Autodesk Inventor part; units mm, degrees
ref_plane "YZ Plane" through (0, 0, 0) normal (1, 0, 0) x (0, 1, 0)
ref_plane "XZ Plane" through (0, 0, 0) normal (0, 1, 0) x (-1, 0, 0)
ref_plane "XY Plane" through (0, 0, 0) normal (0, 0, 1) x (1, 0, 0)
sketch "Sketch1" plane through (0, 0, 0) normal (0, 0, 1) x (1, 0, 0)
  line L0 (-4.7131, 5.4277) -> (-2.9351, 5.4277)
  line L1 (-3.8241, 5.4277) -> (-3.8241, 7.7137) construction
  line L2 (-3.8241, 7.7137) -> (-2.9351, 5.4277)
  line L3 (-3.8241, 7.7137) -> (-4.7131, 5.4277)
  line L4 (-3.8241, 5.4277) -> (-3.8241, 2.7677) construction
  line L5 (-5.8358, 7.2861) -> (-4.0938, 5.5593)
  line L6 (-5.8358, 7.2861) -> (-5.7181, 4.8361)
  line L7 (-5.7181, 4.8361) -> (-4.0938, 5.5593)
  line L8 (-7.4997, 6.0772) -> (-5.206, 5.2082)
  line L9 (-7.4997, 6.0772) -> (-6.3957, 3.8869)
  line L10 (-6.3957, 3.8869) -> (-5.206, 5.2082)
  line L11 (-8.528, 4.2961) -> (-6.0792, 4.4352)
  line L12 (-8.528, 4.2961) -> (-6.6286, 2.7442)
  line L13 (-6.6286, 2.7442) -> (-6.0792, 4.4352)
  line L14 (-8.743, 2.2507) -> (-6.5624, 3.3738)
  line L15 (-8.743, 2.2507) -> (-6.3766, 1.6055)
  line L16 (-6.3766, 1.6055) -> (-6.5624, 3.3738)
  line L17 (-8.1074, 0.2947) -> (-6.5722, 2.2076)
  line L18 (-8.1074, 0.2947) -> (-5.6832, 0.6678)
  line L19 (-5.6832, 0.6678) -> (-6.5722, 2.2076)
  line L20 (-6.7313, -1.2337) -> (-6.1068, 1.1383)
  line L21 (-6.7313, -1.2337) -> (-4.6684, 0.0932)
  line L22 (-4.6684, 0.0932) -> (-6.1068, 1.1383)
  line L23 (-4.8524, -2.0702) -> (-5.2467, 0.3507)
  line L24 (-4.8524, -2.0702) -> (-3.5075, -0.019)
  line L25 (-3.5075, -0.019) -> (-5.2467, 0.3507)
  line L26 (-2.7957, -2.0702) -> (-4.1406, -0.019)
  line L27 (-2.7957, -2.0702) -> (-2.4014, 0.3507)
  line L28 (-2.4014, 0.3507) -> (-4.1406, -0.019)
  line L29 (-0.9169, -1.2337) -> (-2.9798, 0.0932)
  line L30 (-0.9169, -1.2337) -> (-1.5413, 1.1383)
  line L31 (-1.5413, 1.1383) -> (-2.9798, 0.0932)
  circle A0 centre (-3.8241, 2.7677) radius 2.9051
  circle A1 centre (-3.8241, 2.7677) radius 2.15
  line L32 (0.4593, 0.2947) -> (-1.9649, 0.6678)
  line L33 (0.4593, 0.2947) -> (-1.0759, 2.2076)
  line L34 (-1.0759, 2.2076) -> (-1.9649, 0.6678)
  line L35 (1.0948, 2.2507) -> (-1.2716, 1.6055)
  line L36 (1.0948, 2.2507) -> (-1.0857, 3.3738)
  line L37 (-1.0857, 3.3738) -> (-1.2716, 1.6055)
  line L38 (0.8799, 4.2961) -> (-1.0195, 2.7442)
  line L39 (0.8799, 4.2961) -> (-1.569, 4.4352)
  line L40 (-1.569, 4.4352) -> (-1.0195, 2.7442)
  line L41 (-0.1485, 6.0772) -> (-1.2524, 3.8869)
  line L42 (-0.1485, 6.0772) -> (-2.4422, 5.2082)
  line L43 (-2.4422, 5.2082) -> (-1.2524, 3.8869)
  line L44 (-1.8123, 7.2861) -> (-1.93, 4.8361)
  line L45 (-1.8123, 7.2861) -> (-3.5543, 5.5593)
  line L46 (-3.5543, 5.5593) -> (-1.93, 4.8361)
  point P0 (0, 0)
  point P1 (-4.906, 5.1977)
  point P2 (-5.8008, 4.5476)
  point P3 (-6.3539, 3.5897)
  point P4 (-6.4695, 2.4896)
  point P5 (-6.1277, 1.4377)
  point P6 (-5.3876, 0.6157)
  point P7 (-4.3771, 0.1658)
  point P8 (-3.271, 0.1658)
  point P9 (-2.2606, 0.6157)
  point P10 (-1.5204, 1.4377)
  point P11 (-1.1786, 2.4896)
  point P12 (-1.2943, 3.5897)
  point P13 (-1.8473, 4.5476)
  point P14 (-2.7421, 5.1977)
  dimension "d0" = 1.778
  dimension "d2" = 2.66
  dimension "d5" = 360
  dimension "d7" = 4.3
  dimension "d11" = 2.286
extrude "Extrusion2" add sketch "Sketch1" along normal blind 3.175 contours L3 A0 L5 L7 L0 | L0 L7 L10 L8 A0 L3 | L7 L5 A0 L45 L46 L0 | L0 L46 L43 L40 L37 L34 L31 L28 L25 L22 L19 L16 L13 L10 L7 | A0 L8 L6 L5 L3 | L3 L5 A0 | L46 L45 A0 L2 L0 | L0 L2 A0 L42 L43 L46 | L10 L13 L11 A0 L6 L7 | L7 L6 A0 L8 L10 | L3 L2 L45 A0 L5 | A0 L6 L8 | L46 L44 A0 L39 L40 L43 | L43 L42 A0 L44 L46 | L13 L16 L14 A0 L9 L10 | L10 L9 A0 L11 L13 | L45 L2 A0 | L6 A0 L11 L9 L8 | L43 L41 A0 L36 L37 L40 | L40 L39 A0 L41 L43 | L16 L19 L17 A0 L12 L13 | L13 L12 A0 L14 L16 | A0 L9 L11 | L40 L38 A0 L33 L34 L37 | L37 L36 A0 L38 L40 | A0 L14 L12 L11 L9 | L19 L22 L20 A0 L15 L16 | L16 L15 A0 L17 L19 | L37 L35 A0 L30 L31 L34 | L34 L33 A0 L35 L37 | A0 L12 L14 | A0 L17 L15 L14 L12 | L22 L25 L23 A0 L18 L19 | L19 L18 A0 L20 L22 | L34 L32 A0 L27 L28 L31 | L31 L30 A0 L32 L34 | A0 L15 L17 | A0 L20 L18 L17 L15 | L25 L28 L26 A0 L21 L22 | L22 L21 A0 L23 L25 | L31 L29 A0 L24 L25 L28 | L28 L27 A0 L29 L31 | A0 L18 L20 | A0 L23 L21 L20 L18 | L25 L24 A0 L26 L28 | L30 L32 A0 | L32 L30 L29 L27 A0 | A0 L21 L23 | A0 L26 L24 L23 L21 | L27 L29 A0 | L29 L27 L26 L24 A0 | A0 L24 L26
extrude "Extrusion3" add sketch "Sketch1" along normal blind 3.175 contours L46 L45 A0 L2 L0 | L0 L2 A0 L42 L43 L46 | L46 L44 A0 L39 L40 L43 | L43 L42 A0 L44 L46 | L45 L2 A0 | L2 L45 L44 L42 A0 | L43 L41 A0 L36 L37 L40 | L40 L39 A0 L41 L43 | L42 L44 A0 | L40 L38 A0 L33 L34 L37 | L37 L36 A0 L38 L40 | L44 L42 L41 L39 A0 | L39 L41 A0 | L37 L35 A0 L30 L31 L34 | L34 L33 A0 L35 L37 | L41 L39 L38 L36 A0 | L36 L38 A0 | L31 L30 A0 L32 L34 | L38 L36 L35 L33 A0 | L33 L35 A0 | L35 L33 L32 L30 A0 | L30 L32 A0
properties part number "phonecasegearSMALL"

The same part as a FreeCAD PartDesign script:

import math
import FreeCAD as App
import Part
import Sketcher
from FreeCAD import Vector
Q = App.Units.Quantity


def add_polygon(sketch, points):
    """Adds a closed chain of lines whose ends are joined by coincident constraints."""
    first, n = sketch.GeometryCount, len(points)
    for a, b in zip(points, points[1:] + points[:1]):
        sketch.addGeometry(Part.LineSegment(App.Vector(*a, 0), App.Vector(*b, 0)), False)
    for i in range(n):
        sketch.addConstraint(Sketcher.Constraint("Coincident", first + i, 2, first + (i + 1) % n, 1))

doc = App.newDocument("Part")
body = doc.addObject("PartDesign::Body", "Body")

sketch1 = body.newObject("Sketcher::SketchObject", "Sketch")
sketch1.AttachmentSupport = (doc.getObject("XY_Plane"), [""])
sketch1.MapMode = "FlatFace"
sketch1.addGeometry(Part.LineSegment(Vector(-4.5, 6, 0), Vector(-5.8, 7.3, 0)), False)
sketch1.addGeometry(Part.LineSegment(Vector(-5.8, 7.3, 0), Vector(-5.7, 5.4, 0)), False)
sketch1.addGeometry(Part.LineSegment(Vector(-5.7, 5.4, 0), Vector(-7.5, 6.1, 0)), False)
sketch1.addGeometry(Part.LineSegment(Vector(-7.5, 6.1, 0), Vector(-6.7, 4.4, 0)), False)
sketch1.addGeometry(Part.LineSegment(Vector(-6.7, 4.4, 0), Vector(-8.5, 4.3, 0)), False)
sketch1.addGeometry(Part.LineSegment(Vector(-8.5, 4.3, 0), Vector(-7.1, 3.1, 0)), False)
sketch1.addGeometry(Part.LineSegment(Vector(-7.1, 3.1, 0), Vector(-8.7, 2.3, 0)), False)
sketch1.addGeometry(Part.LineSegment(Vector(-8.7, 2.3, 0), Vector(-6.9, 1.8, 0)), False)
sketch1.addGeometry(Part.LineSegment(Vector(-6.9, 1.8, 0), Vector(-8.1, 0.3, 0)), False)
sketch1.addGeometry(Part.LineSegment(Vector(-8.1, 0.3, 0), Vector(-6.3, 0.6, 0)), False)
sketch1.addGeometry(Part.LineSegment(Vector(-6.3, 0.6, 0), Vector(-6.7, -1.2, 0)), False)
sketch1.addGeometry(Part.LineSegment(Vector(-6.7, -1.2, 0), Vector(-5.2, -0.2, 0)), False)
sketch1.addGeometry(Part.LineSegment(Vector(-5.2, -0.2, 0), Vector(-4.9, -2.1, 0)), False)
sketch1.addGeometry(Part.LineSegment(Vector(-4.9, -2.1, 0), Vector(-3.8, -0.5, 0)), False)
sketch1.addGeometry(Part.LineSegment(Vector(-3.8, -0.5, 0), Vector(-2.8, -2.1, 0)), False)
sketch1.addGeometry(Part.LineSegment(Vector(-2.8, -2.1, 0), Vector(-2.5, -0.2, 0)), False)
sketch1.addGeometry(Part.LineSegment(Vector(-2.5, -0.2, 0), Vector(-0.9, -1.2, 0)), False)
sketch1.addGeometry(Part.LineSegment(Vector(-0.9, -1.2, 0), Vector(-1.5, 1, 0)), False)
sketch1.addGeometry(Part.ArcOfCircle(Part.Circle(Vector(-3.8, 2.8, 0), Vector(0, 0, 1), 2.9), math.radians(-37), math.radians(73)), False)
sketch1.addGeometry(Part.LineSegment(Vector(-3, 5.5, 0), Vector(-3.8, 7.7, 0)), False)
sketch1.addGeometry(Part.LineSegment(Vector(-3.8, 7.7, 0), Vector(-4.5, 6, 0)), False)
sketch1.addGeometry(Part.Circle(Vector(-3.8, 2.8, 0), Vector(0, 0, 1), 2.1), False)
sketch1.addConstraint(Sketcher.Constraint("Coincident", 0, 2, 1, 1))
sketch1.addConstraint(Sketcher.Constraint("Coincident", 1, 2, 2, 1))
sketch1.addConstraint(Sketcher.Constraint("Coincident", 2, 2, 3, 1))
sketch1.addConstraint(Sketcher.Constraint("Coincident", 3, 2, 4, 1))
sketch1.addConstraint(Sketcher.Constraint("Coincident", 4, 2, 5, 1))
sketch1.addConstraint(Sketcher.Constraint("Coincident", 5, 2, 6, 1))
sketch1.addConstraint(Sketcher.Constraint("Coincident", 6, 2, 7, 1))
sketch1.addConstraint(Sketcher.Constraint("Coincident", 7, 2, 8, 1))
sketch1.addConstraint(Sketcher.Constraint("Coincident", 8, 2, 9, 1))
sketch1.addConstraint(Sketcher.Constraint("Coincident", 9, 2, 10, 1))
sketch1.addConstraint(Sketcher.Constraint("Coincident", 10, 2, 11, 1))
sketch1.addConstraint(Sketcher.Constraint("Coincident", 11, 2, 12, 1))
sketch1.addConstraint(Sketcher.Constraint("Coincident", 12, 2, 13, 1))
sketch1.addConstraint(Sketcher.Constraint("Coincident", 13, 2, 14, 1))
sketch1.addConstraint(Sketcher.Constraint("Coincident", 14, 2, 15, 1))
sketch1.addConstraint(Sketcher.Constraint("Coincident", 15, 2, 16, 1))
sketch1.addConstraint(Sketcher.Constraint("Coincident", 16, 2, 17, 1))
sketch1.addConstraint(Sketcher.Constraint("Coincident", 17, 2, 18, 1))
sketch1.addConstraint(Sketcher.Constraint("Coincident", 18, 2, 19, 1))
sketch1.addConstraint(Sketcher.Constraint("Coincident", 19, 2, 20, 1))
sketch1.addConstraint(Sketcher.Constraint("Coincident", 20, 2, 0, 1))
sketch1.addConstraint(Sketcher.Constraint("Coincident", 21, 3, 18, 3))
sketch1.addConstraint(Sketcher.Constraint("Horizontal", 12, 2, 14, 2))
sketch1.addConstraint(Sketcher.Constraint("Horizontal", 11, 2, 15, 2))
sketch1.addConstraint(Sketcher.Constraint("Horizontal", 10, 2, 16, 2))
sketch1.addConstraint(Sketcher.Constraint("Vertical", 21, 3, 13, 2))
sketch1.addConstraint(Sketcher.Constraint("Vertical", 13, 2, 19, 2))
sketch1.addConstraint(Sketcher.Constraint("Equal", 0, 1))
sketch1.addConstraint(Sketcher.Constraint("Equal", 1, 2))
sketch1.addConstraint(Sketcher.Constraint("Equal", 2, 3))
sketch1.addConstraint(Sketcher.Constraint("Equal", 3, 4))
sketch1.addConstraint(Sketcher.Constraint("Equal", 4, 5))
sketch1.addConstraint(Sketcher.Constraint("Equal", 5, 6))
sketch1.addConstraint(Sketcher.Constraint("Equal", 6, 7))
sketch1.addConstraint(Sketcher.Constraint("Equal", 7, 8))
sketch1.addConstraint(Sketcher.Constraint("Equal", 8, 9))
sketch1.addConstraint(Sketcher.Constraint("Equal", 9, 10))
sketch1.addConstraint(Sketcher.Constraint("Equal", 10, 11))
sketch1.addConstraint(Sketcher.Constraint("Equal", 11, 12))
sketch1.addConstraint(Sketcher.Constraint("Equal", 12, 13))
sketch1.addConstraint(Sketcher.Constraint("Equal", 13, 14))
sketch1.addConstraint(Sketcher.Constraint("Equal", 14, 15))
sketch1.addConstraint(Sketcher.Constraint("Equal", 15, 16))
sketch1.addConstraint(Sketcher.Constraint("Equal", 17, 19))
sketch1.addConstraint(Sketcher.Constraint("Equal", 16, 20))
sketch1.addConstraint(Sketcher.Constraint("Diameter", 21, Q("0.1693 in")))
sketch1.addConstraint(Sketcher.Constraint("Angle", 0, Q("135.251 deg")))
sketch1.addConstraint(Sketcher.Constraint("Angle", 1, Q("-87.2496 deg")))
sketch1.addConstraint(Sketcher.Constraint("Angle", 2, Q("159.25 deg")))
sketch1.addConstraint(Sketcher.Constraint("Angle", 3, Q("-63.25 deg")))
sketch1.addConstraint(Sketcher.Constraint("Angle", 4, Q("-176.749 deg")))
sketch1.addConstraint(Sketcher.Constraint("Angle", 5, Q("-39.2505 deg")))
sketch1.addConstraint(Sketcher.Constraint("Angle", 6, Q("-152.7496 deg")))
sketch1.addConstraint(Sketcher.Constraint("Angle", 7, Q("-15.251 deg")))
sketch1.addConstraint(Sketcher.Constraint("Angle", 8, Q("-128.7488 deg")))
sketch1.addConstraint(Sketcher.Constraint("Angle", 9, Q("8.7495 deg")))
sketch1.addConstraint(Sketcher.Constraint("Angle", 10, Q("-104.75 deg")))
sketch1.addConstraint(Sketcher.Constraint("Angle", 11, Q("32.75 deg")))
sketch1.addConstraint(Sketcher.Constraint("Angle", 12, Q("-80.7493 deg")))
sketch1.addConstraint(Sketcher.Constraint("Angle", 19, Q("111.2505 deg")))
sketch1.addConstraint(Sketcher.Constraint("Angle", 20, Q("-111.2505 deg")))
sketch1.addConstraint(Sketcher.Constraint("Radius", 18, Q("2.905 mm")))
sketch1.addConstraint(Sketcher.Constraint("DistanceX", 11, 2, 15, 2, Q("2.6597 mm")))
sketch1.addConstraint(Sketcher.Constraint("DistanceX", 10, 2, -1, 1, Q("0.265 in")))
sketch1.addConstraint(Sketcher.Constraint("DistanceY", -1, 1, 1, 2, Q("0.2131 in")))
sketch1.addConstraint(Sketcher.Constraint("DistanceY", -1, 1, 17, 2, Q("0.0399 in")))
pad1 = body.newObject("PartDesign::Pad", "Pad")
pad1.Profile = sketch1
pad1.Length = Q("0.125 in")

sketch2 = body.newObject("Sketcher::SketchObject", "Sketch001")
sketch2.AttachmentSupport = (doc.getObject("XY_Plane"), [""])
sketch2.MapMode = "FlatFace"
add_polygon(sketch2, [(-3.5543, 5.5593), (-2.225678, 4.967747), (-1.468987, 4.127424), (-1.119528, 3.052021), (-1.237778, 1.927218), (-1.9649, 0.6678), (0.4593, 0.2947), (-0.714571, 1.757374), (1.0948, 2.2507), (-0.572464, 3.10945), (0.8799, 4.2961), (-0.992562, 4.402458), (-0.1485, 6.0772), (-1.902297, 5.41275), (-1.8123, 7.2861)])
sketch2.addConstraint(Sketcher.Constraint("DistanceY", 4, 2, 0, 2, Q("0.1693 in")))
sketch2.addConstraint(Sketcher.Constraint("DistanceY", 5, 2, 7, 2, Q("0.077 in")))
sketch2.addConstraint(Sketcher.Constraint("DistanceX", 2, 2, 10, 2, Q("0.005 in")))
sketch2.addConstraint(Sketcher.Constraint("DistanceY", -1, 1, 1, 2, Q("0.1625 in")))
sketch2.addConstraint(Sketcher.Constraint("DistanceY", -1, 1, 4, 2, Q("0.0263 in")))
sketch2.addConstraint(Sketcher.Constraint("DistanceY", -1, 1, 5, 2, Q("0.0116 in")))
sketch2.addConstraint(Sketcher.Constraint("DistanceX", -1, 1, 7, 2, Q("0.0431 in")))
sketch2.addConstraint(Sketcher.Constraint("DistanceX", 12, 2, -1, 1, Q("0.0749 in")))
sketch2.addConstraint(Sketcher.Constraint("DistanceY", -1, 1, 12, 2, Q("0.2131 in")))
sketch2.addConstraint(Sketcher.Constraint("DistanceX", 0, 2, 1, 2, Q("0.0298 in")))
sketch2.addConstraint(Sketcher.Constraint("DistanceX", 1, 2, 3, 2, Q("0.0091 in")))
sketch2.addConstraint(Sketcher.Constraint("DistanceY", 3, 2, 0, 2, Q("0.1197 in")))
sketch2.addConstraint(Sketcher.Constraint("DistanceX", 0, 2, 5, 2, Q("0.1057 in")))
sketch2.addConstraint(Sketcher.Constraint("DistanceX", 3, 2, 6, 2, Q("0.0206 in")))
sketch2.addConstraint(Sketcher.Constraint("DistanceY", 4, 2, 6, 2, Q("0.0429 in")))
sketch2.addConstraint(Sketcher.Constraint("DistanceX", 1, 2, 8, 2, Q("0.0353 in")))
sketch2.addConstraint(Sketcher.Constraint("DistanceY", 7, 2, 8, 2, Q("0.0338 in")))
sketch2.addConstraint(Sketcher.Constraint("DistanceY", 8, 2, 10, 2, Q("0.0509 in")))
sketch2.addConstraint(Sketcher.Constraint("DistanceX", 11, 2, 9, 2, Q("0.0405 in")))
sketch2.addConstraint(Sketcher.Constraint("DistanceX", 8, 2, 11, 2, Q("0.0167 in")))
sketch2.addConstraint(Sketcher.Constraint("DistanceX", 13, 2, 11, 2, Q("0.0655 in")))
sketch2.addConstraint(Sketcher.Constraint("DistanceY", 11, 2, 13, 2, Q("0.0476 in")))
sketch2.addConstraint(Sketcher.Constraint("DistanceX", 14, 2, 0, 2, Q("0.0523 in")))
sketch2.addConstraint(Sketcher.Constraint("DistanceY", 0, 2, 14, 2, Q("0.0233 in")))
sketch2.addConstraint(Sketcher.Constraint("Distance", 2, Q("1.1308 mm")))
sketch2.addConstraint(Sketcher.Constraint("Distance", 3, Q("1.131 mm")))
sketch2.addConstraint(Sketcher.Constraint("Distance", 4, Q("1.4542 mm")))
sketch2.addConstraint(Sketcher.Constraint("Distance", 7, Q("1.8754 mm")))
sketch2.addConstraint(Sketcher.Constraint("Distance", 9, Q("1.8755 mm")))
sketch2.addConstraint(Sketcher.Constraint("Distance", 11, Q("1.8754 mm")))
pad2 = body.newObject("PartDesign::Pad", "Pad001")
pad2.Profile = sketch2
pad2.Length = Q("0.125 in")

doc.recompute()
